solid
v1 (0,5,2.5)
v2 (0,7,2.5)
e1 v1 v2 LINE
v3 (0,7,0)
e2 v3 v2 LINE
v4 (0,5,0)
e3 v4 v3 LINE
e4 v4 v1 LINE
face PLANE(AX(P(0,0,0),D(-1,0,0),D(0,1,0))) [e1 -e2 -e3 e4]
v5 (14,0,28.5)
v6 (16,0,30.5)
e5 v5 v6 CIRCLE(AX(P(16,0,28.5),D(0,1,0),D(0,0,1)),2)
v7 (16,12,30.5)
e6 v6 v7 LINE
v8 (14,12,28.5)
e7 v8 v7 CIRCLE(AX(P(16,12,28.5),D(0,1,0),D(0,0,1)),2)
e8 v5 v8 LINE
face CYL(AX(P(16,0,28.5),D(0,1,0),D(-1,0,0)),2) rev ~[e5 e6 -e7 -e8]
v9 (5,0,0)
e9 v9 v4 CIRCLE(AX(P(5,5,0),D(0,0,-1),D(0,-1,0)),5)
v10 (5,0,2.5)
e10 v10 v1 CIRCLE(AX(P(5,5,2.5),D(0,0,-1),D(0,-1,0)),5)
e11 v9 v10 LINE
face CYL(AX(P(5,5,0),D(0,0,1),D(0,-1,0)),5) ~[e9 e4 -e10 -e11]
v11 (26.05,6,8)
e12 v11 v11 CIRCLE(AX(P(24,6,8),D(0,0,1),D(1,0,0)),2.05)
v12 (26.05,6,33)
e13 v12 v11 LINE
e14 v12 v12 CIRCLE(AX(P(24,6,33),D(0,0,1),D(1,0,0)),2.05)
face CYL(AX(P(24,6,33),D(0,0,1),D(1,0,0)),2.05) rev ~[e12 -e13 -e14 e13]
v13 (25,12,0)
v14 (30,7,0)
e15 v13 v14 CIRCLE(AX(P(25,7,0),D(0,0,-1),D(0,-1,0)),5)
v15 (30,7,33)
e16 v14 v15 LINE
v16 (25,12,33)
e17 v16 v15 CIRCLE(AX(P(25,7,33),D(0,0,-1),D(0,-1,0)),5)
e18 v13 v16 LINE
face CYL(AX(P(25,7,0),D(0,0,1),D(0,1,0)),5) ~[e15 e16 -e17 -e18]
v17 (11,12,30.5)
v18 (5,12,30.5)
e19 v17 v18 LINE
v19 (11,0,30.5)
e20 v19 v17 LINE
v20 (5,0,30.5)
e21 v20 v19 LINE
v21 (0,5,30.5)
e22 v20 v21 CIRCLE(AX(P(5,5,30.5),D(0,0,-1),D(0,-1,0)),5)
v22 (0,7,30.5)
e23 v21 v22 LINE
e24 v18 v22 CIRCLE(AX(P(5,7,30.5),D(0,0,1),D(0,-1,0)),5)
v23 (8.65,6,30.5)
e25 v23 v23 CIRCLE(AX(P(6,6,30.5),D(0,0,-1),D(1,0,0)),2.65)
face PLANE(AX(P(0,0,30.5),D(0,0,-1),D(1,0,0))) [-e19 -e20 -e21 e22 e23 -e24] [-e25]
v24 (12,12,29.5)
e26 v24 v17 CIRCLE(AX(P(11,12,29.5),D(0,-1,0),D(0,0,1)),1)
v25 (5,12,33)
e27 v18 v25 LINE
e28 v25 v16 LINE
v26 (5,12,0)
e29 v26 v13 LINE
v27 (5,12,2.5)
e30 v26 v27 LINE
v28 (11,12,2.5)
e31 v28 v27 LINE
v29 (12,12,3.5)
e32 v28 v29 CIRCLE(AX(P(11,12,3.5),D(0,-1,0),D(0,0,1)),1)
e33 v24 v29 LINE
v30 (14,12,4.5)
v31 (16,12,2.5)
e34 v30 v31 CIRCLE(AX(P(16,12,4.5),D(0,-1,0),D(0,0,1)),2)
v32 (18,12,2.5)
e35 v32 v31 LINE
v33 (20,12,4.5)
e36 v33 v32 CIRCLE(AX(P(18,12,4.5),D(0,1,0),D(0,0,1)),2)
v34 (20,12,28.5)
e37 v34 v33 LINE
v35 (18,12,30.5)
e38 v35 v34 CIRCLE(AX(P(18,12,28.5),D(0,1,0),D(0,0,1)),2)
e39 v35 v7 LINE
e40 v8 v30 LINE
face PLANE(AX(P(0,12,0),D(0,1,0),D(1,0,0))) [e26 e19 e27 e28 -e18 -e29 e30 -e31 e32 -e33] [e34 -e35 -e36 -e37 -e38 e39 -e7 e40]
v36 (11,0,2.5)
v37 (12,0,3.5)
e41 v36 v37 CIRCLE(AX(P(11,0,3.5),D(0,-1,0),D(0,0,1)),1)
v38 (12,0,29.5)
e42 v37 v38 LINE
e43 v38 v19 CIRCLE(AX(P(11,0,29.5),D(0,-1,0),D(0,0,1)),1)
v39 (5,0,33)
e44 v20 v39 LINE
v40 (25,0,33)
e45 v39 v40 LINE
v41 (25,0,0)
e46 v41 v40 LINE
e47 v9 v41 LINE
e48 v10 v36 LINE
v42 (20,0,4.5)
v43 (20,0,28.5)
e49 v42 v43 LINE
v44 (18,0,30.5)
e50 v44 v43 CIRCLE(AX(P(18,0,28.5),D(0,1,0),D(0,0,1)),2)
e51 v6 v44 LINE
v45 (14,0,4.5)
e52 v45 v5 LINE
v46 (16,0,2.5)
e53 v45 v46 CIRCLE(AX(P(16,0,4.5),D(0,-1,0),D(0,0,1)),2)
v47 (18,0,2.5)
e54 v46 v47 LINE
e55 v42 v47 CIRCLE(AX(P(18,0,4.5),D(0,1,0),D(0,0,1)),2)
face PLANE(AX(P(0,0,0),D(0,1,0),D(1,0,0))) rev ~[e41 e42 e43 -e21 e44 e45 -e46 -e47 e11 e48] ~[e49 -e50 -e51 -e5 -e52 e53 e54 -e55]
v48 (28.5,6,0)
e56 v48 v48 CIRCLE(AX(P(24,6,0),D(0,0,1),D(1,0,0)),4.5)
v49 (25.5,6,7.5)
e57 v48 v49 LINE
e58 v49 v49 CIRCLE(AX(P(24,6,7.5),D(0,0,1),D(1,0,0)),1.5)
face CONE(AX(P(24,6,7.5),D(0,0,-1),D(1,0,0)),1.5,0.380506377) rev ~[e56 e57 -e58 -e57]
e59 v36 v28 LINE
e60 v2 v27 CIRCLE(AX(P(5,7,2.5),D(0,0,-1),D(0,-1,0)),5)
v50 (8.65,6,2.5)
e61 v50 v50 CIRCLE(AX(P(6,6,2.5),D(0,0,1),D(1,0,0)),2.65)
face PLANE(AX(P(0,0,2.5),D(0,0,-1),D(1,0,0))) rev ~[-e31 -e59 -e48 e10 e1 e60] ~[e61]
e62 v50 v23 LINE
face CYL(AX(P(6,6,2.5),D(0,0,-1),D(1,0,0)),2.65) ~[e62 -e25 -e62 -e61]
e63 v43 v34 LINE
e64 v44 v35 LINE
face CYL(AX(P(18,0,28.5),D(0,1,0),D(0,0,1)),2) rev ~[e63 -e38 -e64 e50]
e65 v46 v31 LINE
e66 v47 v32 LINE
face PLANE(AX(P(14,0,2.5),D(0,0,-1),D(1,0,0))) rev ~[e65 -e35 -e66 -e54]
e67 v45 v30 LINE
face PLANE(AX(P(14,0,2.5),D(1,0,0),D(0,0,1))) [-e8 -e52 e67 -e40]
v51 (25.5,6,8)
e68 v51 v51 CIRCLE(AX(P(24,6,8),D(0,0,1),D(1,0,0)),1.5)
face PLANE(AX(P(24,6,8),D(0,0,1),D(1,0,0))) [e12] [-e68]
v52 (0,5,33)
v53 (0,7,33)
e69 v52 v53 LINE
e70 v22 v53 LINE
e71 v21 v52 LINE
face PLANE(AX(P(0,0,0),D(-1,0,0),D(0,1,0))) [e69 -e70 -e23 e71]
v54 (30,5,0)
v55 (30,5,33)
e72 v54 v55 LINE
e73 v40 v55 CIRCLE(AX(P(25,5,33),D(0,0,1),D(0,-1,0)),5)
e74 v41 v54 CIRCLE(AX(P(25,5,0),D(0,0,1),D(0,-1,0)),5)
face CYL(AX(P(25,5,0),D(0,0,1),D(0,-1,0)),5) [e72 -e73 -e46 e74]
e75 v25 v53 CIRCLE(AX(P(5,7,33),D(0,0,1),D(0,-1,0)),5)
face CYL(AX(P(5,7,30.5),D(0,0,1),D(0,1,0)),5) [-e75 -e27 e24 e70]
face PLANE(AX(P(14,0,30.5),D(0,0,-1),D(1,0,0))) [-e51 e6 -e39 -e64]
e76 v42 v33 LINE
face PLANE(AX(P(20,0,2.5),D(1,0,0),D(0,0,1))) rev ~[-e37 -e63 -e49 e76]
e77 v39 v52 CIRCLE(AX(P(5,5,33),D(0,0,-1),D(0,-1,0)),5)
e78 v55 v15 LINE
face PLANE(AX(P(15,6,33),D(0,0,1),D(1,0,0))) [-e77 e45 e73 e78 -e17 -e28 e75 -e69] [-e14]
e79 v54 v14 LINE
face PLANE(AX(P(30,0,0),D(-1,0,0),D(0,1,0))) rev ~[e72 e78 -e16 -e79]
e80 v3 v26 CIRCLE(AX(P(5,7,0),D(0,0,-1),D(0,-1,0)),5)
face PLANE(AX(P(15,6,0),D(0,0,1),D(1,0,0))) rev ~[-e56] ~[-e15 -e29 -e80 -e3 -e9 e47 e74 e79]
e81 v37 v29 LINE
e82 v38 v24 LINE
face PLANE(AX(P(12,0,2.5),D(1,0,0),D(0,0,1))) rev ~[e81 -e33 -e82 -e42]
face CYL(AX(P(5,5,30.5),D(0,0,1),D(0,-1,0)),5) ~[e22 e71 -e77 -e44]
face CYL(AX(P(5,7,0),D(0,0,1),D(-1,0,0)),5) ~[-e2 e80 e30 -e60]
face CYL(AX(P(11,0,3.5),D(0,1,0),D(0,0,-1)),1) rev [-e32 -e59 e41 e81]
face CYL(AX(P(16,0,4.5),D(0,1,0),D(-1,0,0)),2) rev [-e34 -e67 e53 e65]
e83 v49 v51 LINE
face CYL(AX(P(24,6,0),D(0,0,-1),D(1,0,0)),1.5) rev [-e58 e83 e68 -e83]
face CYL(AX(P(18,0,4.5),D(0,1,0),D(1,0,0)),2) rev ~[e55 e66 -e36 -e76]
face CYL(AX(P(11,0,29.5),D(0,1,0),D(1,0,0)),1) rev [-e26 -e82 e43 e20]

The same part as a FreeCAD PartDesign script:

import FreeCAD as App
import Part
import Sketcher

V = App.Vector


def edges_at(feature, points):
    """Names of the edges that pass closest to the given points."""
    edges = feature.Shape.Edges
    near = lambda p: min(range(len(edges)), key=lambda i: edges[i].distToShape(Part.Vertex(*p))[0])
    return sorted({f"Edge{near(p) + 1}" for p in points})

doc = App.newDocument("Part")
params = doc.addObject("Spreadsheet::Sheet", "Params")
for row, (alias, value) in enumerate([
    ("sketch1_diameter", "3 mm"),
    ("sketch1_width", "30 mm"),
    ("sketch1_height", "12 mm"),
    ("pad1_length", "33 mm"),
    ("sketch2_width", "12 mm"),
    ("sketch2_height", "28 mm"),
    ("pocket1_length", "25 mm"),
    ("sketch3_diameter", "5.3 mm"),
    ("pad2_length", "28.5 mm"),
    ("fillet_radius", "5 mm"),
    ("fillet2_radius", "1 mm"),
    ("sketch4_diameter", "3 mm"),
    ("sketch4_diameter2", "4.1 mm"),
    ("pocket2_length", "25 mm"),
    ("chamfer_size", "3 mm"),
    ("chamfer_size2", "7.5 mm"),
    ("sketch5_width", "6 mm"),
    ("sketch5_height", "28 mm"),
    ("pocket3_length", "25 mm"),
    ("fillet3_radius", "2 mm"),
], start=1):
    params.set(f"A{row}", alias)
    params.set(f"B{row}", "=" + value)
    params.setAlias(f"B{row}", alias)

body = doc.addObject("PartDesign::Body", "Body")

# Sketch on XY plane
sketch1 = body.newObject("Sketcher::SketchObject", "Sketch")
sketch1.AttachmentSupport = (doc.getObject("XY_Plane"), [""])
sketch1.MapMode = "FlatFace"
sketch1.addGeometry(Part.LineSegment(V(0, 12, 0), V(0, 0, 0)), False)
sketch1.addGeometry(Part.LineSegment(V(0, 0, 0), V(30, 0, 0)), False)
sketch1.addGeometry(Part.LineSegment(V(30, 0, 0), V(30, 12, 0)), False)
sketch1.addGeometry(Part.LineSegment(V(30, 12, 0), V(0, 12, 0)), False)
sketch1.addGeometry(Part.Circle(V(24, 6, 0), V(0, 0, 1), 1.5), False)
sketch1.addConstraint(Sketcher.Constraint("Coincident", 0, 2, 1, 1))
sketch1.addConstraint(Sketcher.Constraint("Coincident", 1, 2, 2, 1))
sketch1.addConstraint(Sketcher.Constraint("Coincident", 2, 2, 3, 1))
sketch1.addConstraint(Sketcher.Constraint("Coincident", 3, 2, 0, 1))
sketch1.addConstraint(Sketcher.Constraint("Vertical", 0))
sketch1.addConstraint(Sketcher.Constraint("Horizontal", 1))
sketch1.addConstraint(Sketcher.Constraint("Vertical", 2))
sketch1.addConstraint(Sketcher.Constraint("Horizontal", 3))
sketch1.addConstraint(Sketcher.Constraint("Coincident", 0, 2, -1, 1))
sketch1.addConstraint(Sketcher.Constraint("Diameter", 4, 3.0))
sketch1.addConstraint(Sketcher.Constraint("DistanceX", 1, 1, 1, 2, 30.0))
sketch1.addConstraint(Sketcher.Constraint("DistanceY", 0, 2, 0, 1, 12.0))
sketch1.addConstraint(Sketcher.Constraint("DistanceX", -1, 1, 4, 3, 24.0))
sketch1.addConstraint(Sketcher.Constraint("DistanceY", -1, 1, 4, 3, 6.0))
sketch1.setExpression("Constraints[9]", "Params.sketch1_diameter")
sketch1.setExpression("Constraints[10]", "Params.sketch1_width")
sketch1.setExpression("Constraints[11]", "Params.sketch1_height")
pad1 = body.newObject("PartDesign::Pad", "Pad")
pad1.Profile = sketch1
pad1.setExpression("Length", "Params.pad1_length")

# Sketch on XZ plane
sketch2 = body.newObject("Sketcher::SketchObject", "Sketch001")
sketch2.AttachmentSupport = (doc.getObject("XZ_Plane"), [""])
sketch2.MapMode = "FlatFace"
sketch2.addGeometry(Part.LineSegment(V(0, 30, 0), V(0, 2, 0)), False)
sketch2.addGeometry(Part.LineSegment(V(0, 2, 0), V(12, 2, 0)), False)
sketch2.addGeometry(Part.LineSegment(V(12, 2, 0), V(12, 30, 0)), False)
sketch2.addGeometry(Part.LineSegment(V(12, 30, 0), V(0, 30, 0)), False)
sketch2.addConstraint(Sketcher.Constraint("Coincident", 0, 2, 1, 1))
sketch2.addConstraint(Sketcher.Constraint("Coincident", 1, 2, 2, 1))
sketch2.addConstraint(Sketcher.Constraint("Coincident", 2, 2, 3, 1))
sketch2.addConstraint(Sketcher.Constraint("Coincident", 3, 2, 0, 1))
sketch2.addConstraint(Sketcher.Constraint("Vertical", 0))
sketch2.addConstraint(Sketcher.Constraint("Horizontal", 1))
sketch2.addConstraint(Sketcher.Constraint("Vertical", 2))
sketch2.addConstraint(Sketcher.Constraint("Horizontal", 3))
sketch2.addConstraint(Sketcher.Constraint("PointOnObject", 0, 2, -2))
sketch2.addConstraint(Sketcher.Constraint("DistanceX", 1, 1, 1, 2, 12.0))
sketch2.addConstraint(Sketcher.Constraint("DistanceY", 0, 2, 0, 1, 28.0))
sketch2.addConstraint(Sketcher.Constraint("DistanceY", -1, 1, 0, 2, 2.5))
sketch2.setExpression("Constraints[9]", "Params.sketch2_width")
sketch2.setExpression("Constraints[10]", "Params.sketch2_height")
pocket1 = body.newObject("PartDesign::Pocket", "Pocket")
pocket1.Profile = sketch2
pocket1.setExpression("Length", "Params.pocket1_length")

# Sketch on XY plane
sketch3 = body.newObject("Sketcher::SketchObject", "Sketch002")
sketch3.AttachmentSupport = (doc.getObject("XY_Plane"), [""])
sketch3.MapMode = "FlatFace"
sketch3.AttachmentOffset = App.Placement(V(0, 0, 2.5), App.Rotation())
sketch3.addGeometry(Part.Circle(V(6, 6, 0), V(0, 0, 1), 2.6), False)
sketch3.addConstraint(Sketcher.Constraint("Diameter", 0, 5.3))
sketch3.addConstraint(Sketcher.Constraint("DistanceX", -1, 1, 0, 3, 6.0))
sketch3.addConstraint(Sketcher.Constraint("DistanceY", -1, 1, 0, 3, 6.0))
sketch3.setExpression("Constraints[0]", "Params.sketch3_diameter")
pad2 = body.newObject("PartDesign::Pad", "Pad001")
pad2.Profile = sketch3
pad2.setExpression("Length", "Params.pad2_length")
doc.recompute()

fillet = body.newObject("PartDesign::Fillet", "Fillet")
fillet.Base = (pad2, edges_at(pad2, [
    (0, 0, 1.25),
    (0, 0, 31.75),
    (0, 12, 1.25),
    (0, 12, 31.75),
    (30, 0, 16.5),
    (30, 12, 16.5),
]))
fillet.setExpression("Radius", "Params.fillet_radius")
doc.recompute()

fillet2 = body.newObject("PartDesign::Fillet", "Fillet001")
fillet2.Base = (fillet, edges_at(fillet, [(12, 6, 2.5), (12, 6, 30.5)]))
fillet2.setExpression("Radius", "Params.fillet2_radius")

# Sketch on XY plane
sketch4 = body.newObject("Sketcher::SketchObject", "Sketch003")
sketch4.AttachmentSupport = (doc.getObject("XY_Plane"), [""])
sketch4.MapMode = "FlatFace"
sketch4.AttachmentOffset = App.Placement(V(0, 0, 33), App.Rotation())
sketch4.addGeometry(Part.Circle(V(24, 6, 0), V(0, 0, 1), 2), False)
sketch4.addGeometry(Part.Circle(V(24, 6, 0), V(0, 0, 1), 1.5), False)
sketch4.addConstraint(Sketcher.Constraint("Coincident", 1, 3, 0, 3))
sketch4.addConstraint(Sketcher.Constraint("Diameter", 1, 3.0))
sketch4.addConstraint(Sketcher.Constraint("Diameter", 0, 4.1))
sketch4.addConstraint(Sketcher.Constraint("DistanceX", -1, 1, 0, 3, 24.0))
sketch4.addConstraint(Sketcher.Constraint("DistanceY", -1, 1, 0, 3, 6.0))
sketch4.setExpression("Constraints[1]", "Params.sketch4_diameter")
sketch4.setExpression("Constraints[2]", "Params.sketch4_diameter2")
pocket2 = body.newObject("PartDesign::Pocket", "Pocket001")
pocket2.Profile = sketch4
pocket2.setExpression("Length", "Params.pocket2_length")
doc.recompute()

chamfer = body.newObject("PartDesign::Chamfer", "Chamfer")
chamfer.Base = (pocket2, edges_at(pocket2, [(22.5, 6, 0)]))
chamfer.ChamferType = "Two distances"
chamfer.setExpression("Size", "Params.chamfer_size")
chamfer.setExpression("Size2", "Params.chamfer_size2")

# Sketch on XZ plane
sketch5 = body.newObject("Sketcher::SketchObject", "Sketch004")
sketch5.AttachmentSupport = (doc.getObject("XZ_Plane"), [""])
sketch5.MapMode = "FlatFace"
sketch5.addGeometry(Part.LineSegment(V(14, 30, 0), V(14, 2, 0)), False)
sketch5.addGeometry(Part.LineSegment(V(14, 2, 0), V(20, 2, 0)), False)
sketch5.addGeometry(Part.LineSegment(V(20, 2, 0), V(20, 30, 0)), False)
sketch5.addGeometry(Part.LineSegment(V(20, 30, 0), V(14, 30, 0)), False)
sketch5.addConstraint(Sketcher.Constraint("Coincident", 0, 2, 1, 1))
sketch5.addConstraint(Sketcher.Constraint("Coincident", 1, 2, 2, 1))
sketch5.addConstraint(Sketcher.Constraint("Coincident", 2, 2, 3, 1))
sketch5.addConstraint(Sketcher.Constraint("Coincident", 3, 2, 0, 1))
sketch5.addConstraint(Sketcher.Constraint("Vertical", 0))
sketch5.addConstraint(Sketcher.Constraint("Horizontal", 1))
sketch5.addConstraint(Sketcher.Constraint("Vertical", 2))
sketch5.addConstraint(Sketcher.Constraint("Horizontal", 3))
sketch5.addConstraint(Sketcher.Constraint("DistanceX", 1, 1, 1, 2, 6.0))
sketch5.addConstraint(Sketcher.Constraint("DistanceY", 0, 2, 0, 1, 28.0))
sketch5.addConstraint(Sketcher.Constraint("DistanceX", -1, 1, 0, 2, 14.0))
sketch5.addConstraint(Sketcher.Constraint("DistanceY", -1, 1, 0, 2, 2.5))
sketch5.setExpression("Constraints[8]", "Params.sketch5_width")
sketch5.setExpression("Constraints[9]", "Params.sketch5_height")
pocket3 = body.newObject("PartDesign::Pocket", "Pocket002")
pocket3.Profile = sketch5
pocket3.setExpression("Length", "Params.pocket3_length")
doc.recompute()

fillet3 = body.newObject("PartDesign::Fillet", "Fillet002")
fillet3.Base = (pocket3, edges_at(pocket3, [
    (14, 6, 30.5),
    (20, 6, 30.5),
    (14, 6, 2.5),
    (20, 6, 2.5),
]))
fillet3.setExpression("Radius", "Params.fillet3_radius")

doc.recompute()
